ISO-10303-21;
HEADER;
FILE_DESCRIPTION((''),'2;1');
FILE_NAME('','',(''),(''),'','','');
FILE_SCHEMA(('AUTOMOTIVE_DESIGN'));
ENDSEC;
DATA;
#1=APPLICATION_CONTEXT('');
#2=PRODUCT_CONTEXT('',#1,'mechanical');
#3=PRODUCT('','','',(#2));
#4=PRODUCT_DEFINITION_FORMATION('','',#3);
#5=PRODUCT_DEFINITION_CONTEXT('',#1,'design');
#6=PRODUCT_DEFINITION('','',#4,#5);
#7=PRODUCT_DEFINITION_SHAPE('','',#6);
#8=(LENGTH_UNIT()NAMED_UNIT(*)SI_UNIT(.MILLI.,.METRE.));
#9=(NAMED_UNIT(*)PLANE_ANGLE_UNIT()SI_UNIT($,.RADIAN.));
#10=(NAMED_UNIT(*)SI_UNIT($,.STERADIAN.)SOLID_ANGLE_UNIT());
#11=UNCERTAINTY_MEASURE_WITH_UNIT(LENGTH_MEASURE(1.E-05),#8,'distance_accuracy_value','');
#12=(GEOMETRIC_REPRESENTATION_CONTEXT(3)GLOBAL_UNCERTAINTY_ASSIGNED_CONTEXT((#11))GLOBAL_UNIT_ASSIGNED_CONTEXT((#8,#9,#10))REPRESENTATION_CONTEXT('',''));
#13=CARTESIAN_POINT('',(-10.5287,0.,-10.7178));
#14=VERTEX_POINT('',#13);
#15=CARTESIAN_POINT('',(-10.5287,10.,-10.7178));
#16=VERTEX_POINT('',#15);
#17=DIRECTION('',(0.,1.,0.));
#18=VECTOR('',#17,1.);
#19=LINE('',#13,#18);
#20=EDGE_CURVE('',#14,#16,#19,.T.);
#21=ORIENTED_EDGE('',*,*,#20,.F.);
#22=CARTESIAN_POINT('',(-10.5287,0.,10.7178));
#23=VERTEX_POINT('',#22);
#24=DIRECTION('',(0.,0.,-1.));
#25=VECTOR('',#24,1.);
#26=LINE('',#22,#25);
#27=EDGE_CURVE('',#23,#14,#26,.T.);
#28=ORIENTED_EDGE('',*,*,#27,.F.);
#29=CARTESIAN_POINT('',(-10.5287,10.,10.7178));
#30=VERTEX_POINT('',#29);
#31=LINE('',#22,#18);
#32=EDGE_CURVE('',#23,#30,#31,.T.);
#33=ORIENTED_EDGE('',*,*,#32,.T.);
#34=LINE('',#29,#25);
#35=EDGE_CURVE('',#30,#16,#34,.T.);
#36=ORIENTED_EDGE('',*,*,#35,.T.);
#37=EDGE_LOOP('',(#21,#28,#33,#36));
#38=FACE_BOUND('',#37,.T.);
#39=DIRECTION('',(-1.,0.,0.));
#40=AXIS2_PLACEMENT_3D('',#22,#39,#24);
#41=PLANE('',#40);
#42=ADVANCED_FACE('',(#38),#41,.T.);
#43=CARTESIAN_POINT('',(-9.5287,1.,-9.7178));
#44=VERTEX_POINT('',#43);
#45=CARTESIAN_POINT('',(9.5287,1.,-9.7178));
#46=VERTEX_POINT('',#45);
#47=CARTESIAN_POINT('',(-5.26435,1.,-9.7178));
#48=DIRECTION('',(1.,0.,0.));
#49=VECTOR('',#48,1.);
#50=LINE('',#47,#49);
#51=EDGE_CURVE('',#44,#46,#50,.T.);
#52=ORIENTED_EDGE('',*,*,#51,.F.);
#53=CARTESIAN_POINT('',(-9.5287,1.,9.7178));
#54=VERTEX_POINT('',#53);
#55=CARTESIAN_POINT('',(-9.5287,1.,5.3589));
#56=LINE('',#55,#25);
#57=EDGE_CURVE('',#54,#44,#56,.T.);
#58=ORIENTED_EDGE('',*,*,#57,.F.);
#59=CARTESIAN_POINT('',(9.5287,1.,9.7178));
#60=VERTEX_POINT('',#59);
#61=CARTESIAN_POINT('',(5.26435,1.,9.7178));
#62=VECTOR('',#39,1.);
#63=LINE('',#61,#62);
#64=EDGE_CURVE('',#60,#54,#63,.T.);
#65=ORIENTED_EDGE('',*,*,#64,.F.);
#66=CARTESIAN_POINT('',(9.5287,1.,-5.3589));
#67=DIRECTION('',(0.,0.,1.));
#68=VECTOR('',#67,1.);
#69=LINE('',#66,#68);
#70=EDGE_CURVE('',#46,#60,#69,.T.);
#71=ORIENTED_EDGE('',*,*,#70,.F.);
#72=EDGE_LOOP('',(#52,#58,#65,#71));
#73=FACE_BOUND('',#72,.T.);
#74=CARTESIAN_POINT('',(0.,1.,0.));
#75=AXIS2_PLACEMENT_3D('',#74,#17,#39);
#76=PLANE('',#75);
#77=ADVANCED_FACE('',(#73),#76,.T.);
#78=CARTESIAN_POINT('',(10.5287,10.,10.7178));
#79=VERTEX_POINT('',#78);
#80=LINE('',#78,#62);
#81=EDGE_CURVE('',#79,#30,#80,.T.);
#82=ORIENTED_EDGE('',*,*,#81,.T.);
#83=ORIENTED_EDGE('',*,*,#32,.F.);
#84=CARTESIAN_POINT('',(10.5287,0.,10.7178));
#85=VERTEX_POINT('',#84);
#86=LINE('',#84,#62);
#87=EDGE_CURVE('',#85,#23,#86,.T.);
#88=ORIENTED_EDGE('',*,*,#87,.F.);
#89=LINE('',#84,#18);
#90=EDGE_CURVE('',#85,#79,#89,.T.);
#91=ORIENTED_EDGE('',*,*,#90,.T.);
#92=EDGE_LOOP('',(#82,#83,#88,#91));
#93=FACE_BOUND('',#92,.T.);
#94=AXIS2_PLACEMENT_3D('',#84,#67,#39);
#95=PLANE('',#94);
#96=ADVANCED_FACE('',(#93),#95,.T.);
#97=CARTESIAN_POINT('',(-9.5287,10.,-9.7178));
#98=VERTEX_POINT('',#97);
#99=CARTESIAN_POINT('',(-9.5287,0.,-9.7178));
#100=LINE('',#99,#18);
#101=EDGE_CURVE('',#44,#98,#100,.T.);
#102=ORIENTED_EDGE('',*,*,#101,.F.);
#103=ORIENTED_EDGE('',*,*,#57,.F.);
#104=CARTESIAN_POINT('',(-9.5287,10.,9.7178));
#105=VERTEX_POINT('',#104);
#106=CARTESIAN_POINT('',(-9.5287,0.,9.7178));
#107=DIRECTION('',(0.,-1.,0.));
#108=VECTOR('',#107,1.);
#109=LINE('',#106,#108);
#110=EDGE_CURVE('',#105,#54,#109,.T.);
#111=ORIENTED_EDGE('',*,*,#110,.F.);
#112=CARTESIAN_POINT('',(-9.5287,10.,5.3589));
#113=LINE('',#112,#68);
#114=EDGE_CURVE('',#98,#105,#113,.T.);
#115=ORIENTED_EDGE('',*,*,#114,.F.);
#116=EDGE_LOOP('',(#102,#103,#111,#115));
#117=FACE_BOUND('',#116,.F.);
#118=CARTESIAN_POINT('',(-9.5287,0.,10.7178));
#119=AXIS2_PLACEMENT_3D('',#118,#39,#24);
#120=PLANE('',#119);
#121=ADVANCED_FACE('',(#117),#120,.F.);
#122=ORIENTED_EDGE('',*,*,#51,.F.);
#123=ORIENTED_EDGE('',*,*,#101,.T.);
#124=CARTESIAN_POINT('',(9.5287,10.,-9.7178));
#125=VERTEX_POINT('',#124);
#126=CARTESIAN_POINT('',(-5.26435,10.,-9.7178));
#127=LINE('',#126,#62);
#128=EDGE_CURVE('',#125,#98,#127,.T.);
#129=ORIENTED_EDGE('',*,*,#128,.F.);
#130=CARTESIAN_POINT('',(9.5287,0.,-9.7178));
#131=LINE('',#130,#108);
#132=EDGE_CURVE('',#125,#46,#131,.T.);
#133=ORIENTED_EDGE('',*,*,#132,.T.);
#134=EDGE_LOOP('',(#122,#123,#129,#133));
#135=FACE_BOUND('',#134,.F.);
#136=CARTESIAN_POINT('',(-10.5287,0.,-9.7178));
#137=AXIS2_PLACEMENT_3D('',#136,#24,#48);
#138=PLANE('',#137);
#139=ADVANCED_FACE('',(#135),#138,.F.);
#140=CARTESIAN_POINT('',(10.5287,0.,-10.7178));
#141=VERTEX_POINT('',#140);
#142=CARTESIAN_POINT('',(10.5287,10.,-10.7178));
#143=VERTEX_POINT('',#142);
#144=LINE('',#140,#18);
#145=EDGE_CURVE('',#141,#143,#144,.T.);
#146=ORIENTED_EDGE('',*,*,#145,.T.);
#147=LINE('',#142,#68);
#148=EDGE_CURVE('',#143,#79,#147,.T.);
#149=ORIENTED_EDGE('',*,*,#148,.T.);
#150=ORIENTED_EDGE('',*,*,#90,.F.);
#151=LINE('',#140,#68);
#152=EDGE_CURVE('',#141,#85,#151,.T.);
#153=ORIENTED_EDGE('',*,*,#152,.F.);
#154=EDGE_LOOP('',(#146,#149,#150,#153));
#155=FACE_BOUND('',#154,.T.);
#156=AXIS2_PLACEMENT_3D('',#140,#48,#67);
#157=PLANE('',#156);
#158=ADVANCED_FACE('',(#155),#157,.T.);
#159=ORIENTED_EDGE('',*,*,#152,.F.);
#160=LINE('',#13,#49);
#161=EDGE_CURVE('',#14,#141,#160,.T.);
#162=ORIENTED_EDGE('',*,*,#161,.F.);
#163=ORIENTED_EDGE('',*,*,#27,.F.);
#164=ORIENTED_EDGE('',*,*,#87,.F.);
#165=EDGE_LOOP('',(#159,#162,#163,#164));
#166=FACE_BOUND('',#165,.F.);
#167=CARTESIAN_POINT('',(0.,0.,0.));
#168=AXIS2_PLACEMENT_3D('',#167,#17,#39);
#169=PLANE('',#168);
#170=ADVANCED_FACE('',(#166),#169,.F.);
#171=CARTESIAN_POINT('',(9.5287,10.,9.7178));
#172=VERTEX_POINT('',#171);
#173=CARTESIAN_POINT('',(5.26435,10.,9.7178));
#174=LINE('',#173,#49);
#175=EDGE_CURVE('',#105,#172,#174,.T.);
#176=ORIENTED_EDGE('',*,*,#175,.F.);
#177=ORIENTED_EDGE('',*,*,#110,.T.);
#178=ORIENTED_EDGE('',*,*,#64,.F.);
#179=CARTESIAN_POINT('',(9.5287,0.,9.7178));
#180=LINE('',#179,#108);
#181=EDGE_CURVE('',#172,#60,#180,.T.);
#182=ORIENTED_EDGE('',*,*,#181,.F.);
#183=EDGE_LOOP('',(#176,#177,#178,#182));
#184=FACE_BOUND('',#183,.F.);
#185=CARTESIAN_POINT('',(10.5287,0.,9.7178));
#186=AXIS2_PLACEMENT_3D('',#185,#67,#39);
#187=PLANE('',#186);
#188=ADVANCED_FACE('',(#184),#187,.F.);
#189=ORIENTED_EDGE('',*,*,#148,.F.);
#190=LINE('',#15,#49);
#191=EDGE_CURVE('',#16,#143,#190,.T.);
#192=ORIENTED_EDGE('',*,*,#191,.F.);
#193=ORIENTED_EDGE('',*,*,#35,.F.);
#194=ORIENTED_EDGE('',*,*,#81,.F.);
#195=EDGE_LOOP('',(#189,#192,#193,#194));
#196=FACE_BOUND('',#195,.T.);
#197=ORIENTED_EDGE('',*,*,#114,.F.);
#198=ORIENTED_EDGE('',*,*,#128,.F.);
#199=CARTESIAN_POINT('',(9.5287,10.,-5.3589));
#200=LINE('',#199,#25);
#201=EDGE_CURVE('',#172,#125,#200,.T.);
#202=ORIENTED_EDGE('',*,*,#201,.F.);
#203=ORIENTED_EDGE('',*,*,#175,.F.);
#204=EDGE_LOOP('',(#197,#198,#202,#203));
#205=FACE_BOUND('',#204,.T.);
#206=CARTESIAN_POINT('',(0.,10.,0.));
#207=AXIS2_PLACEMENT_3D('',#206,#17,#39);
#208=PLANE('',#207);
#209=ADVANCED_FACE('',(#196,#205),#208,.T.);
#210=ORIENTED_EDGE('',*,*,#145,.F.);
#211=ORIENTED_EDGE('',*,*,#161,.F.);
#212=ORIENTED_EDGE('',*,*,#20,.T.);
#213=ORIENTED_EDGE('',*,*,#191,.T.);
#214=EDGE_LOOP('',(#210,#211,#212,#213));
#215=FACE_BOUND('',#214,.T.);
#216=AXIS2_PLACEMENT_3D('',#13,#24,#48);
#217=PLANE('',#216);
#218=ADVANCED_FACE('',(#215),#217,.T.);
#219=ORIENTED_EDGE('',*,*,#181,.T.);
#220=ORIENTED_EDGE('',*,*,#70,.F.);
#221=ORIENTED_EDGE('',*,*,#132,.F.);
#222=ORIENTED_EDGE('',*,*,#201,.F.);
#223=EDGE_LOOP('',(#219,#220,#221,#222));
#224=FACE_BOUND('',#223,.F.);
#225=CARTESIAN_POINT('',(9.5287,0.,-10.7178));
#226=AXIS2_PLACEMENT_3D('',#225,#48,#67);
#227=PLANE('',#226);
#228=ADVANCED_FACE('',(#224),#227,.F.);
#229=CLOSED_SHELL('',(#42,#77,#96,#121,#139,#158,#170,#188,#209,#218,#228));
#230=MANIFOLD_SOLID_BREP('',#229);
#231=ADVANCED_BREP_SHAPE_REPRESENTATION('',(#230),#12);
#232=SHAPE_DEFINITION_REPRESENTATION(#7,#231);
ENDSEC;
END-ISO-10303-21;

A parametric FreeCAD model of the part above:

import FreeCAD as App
import Part
import Sketcher
Q = App.Units.Quantity


def faces_at(feature, points):
    """Names of the faces that lie closest to the given points."""
    faces = feature.Shape.Faces
    near = lambda p: min(range(len(faces)), key=lambda i: faces[i].distToShape(Part.Vertex(*p))[0])
    return sorted({f"Face{near(p) + 1}" for p in points})

doc = App.newDocument("Part")
body = doc.addObject("PartDesign::Body", "Body")

# Sketch on XZ plane
sketch1 = body.newObject("Sketcher::SketchObject", "Sketch")
sketch1.AttachmentSupport = (doc.getObject("XZ_Plane"), [""])
sketch1.MapMode = "FlatFace"
sketch1.addGeometry(Part.LineSegment(App.Vector(11, -11, 0), App.Vector(-11, -11, 0)), False)
sketch1.addGeometry(Part.LineSegment(App.Vector(-11, -11, 0), App.Vector(-11, 11, 0)), False)
sketch1.addGeometry(Part.LineSegment(App.Vector(-11, 11, 0), App.Vector(11, 11, 0)), False)
sketch1.addGeometry(Part.LineSegment(App.Vector(11, 11, 0), App.Vector(11, -11, 0)), False)
sketch1.addConstraint(Sketcher.Constraint("Coincident", 0, 2, 1, 1))
sketch1.addConstraint(Sketcher.Constraint("Coincident", 1, 2, 2, 1))
sketch1.addConstraint(Sketcher.Constraint("Coincident", 2, 2, 3, 1))
sketch1.addConstraint(Sketcher.Constraint("Coincident", 3, 2, 0, 1))
sketch1.addConstraint(Sketcher.Constraint("Horizontal", 0))
sketch1.addConstraint(Sketcher.Constraint("Vertical", 1))
sketch1.addConstraint(Sketcher.Constraint("Horizontal", 2))
sketch1.addConstraint(Sketcher.Constraint("Vertical", 3))
sketch1.addConstraint(Sketcher.Constraint("Symmetric", 0, 2, 2, 2, -1, 1))
sketch1.addConstraint(Sketcher.Constraint("DistanceX", 0, 2, 0, 1, Q("21.0574 mm")))
sketch1.addConstraint(Sketcher.Constraint("DistanceY", 1, 1, 1, 2, Q("21.4356 mm")))
pad1 = body.newObject("PartDesign::Pad", "Pad")
pad1.Profile = sketch1
pad1.Length = 10
pad1.Reversed = True
doc.recompute()

thickness = body.newObject("PartDesign::Thickness", "Thickness")
thickness.Base = (pad1, faces_at(pad1, [(-3.51, 10, -3.573)]))
thickness.Value = 1
thickness.Reversed = True
thickness.Join = "Intersection"

doc.recompute()
